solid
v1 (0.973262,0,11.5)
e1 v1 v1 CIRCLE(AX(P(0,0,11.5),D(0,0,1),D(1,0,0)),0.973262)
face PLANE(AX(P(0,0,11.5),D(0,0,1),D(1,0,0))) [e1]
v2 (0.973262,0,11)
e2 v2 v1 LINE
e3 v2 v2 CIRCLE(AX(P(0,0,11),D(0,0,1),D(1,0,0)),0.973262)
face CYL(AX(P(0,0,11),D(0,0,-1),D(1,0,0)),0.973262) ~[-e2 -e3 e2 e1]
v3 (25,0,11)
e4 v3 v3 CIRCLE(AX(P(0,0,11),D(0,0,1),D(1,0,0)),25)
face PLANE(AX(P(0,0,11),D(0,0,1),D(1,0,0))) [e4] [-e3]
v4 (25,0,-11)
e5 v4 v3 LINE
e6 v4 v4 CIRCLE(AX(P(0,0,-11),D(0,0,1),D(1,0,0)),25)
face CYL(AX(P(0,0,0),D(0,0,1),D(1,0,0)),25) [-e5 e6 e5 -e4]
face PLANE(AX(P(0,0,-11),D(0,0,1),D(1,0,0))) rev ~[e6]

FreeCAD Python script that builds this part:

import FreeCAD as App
import Part
import Sketcher

V = App.Vector

doc = App.newDocument("Part")
body = doc.addObject("PartDesign::Body", "Body")

sketch1 = body.newObject("Sketcher::SketchObject", "Sketch")
sketch1.AttachmentSupport = (doc.getObject("XY_Plane"), [""])
sketch1.MapMode = "FlatFace"
sketch1.addGeometry(Part.Circle(V(0, 0, 0), V(0, 0, 1), 25), False)
sketch1.addConstraint([
    Sketcher.Constraint("Coincident", 0, 3, -1, 1),
    Sketcher.Constraint("Diameter", 0, 50.0),
])
pad1 = body.newObject("PartDesign::Pad", "Pad")
pad1.Profile = sketch1
pad1.Length = 22
pad1.Midplane = True

sketch2 = body.newObject("Sketcher::SketchObject", "Sketch001")
sketch2.AttachmentSupport = (doc.getObject("XY_Plane"), [""])
sketch2.MapMode = "FlatFace"
sketch2.AttachmentOffset = App.Placement(V(0, 0, 11), App.Rotation())
sketch2.addGeometry(Part.Circle(V(0, 0, 0), V(0, 0, 1), 1), False)
sketch2.addConstraint([
    Sketcher.Constraint("Coincident", 0, 3, -1, 1),
    Sketcher.Constraint("Diameter", 0, 1.946524),
])
pad2 = body.newObject("PartDesign::Pad", "Pad001")
pad2.Profile = sketch2
pad2.Length = 0.5

doc.recompute()
